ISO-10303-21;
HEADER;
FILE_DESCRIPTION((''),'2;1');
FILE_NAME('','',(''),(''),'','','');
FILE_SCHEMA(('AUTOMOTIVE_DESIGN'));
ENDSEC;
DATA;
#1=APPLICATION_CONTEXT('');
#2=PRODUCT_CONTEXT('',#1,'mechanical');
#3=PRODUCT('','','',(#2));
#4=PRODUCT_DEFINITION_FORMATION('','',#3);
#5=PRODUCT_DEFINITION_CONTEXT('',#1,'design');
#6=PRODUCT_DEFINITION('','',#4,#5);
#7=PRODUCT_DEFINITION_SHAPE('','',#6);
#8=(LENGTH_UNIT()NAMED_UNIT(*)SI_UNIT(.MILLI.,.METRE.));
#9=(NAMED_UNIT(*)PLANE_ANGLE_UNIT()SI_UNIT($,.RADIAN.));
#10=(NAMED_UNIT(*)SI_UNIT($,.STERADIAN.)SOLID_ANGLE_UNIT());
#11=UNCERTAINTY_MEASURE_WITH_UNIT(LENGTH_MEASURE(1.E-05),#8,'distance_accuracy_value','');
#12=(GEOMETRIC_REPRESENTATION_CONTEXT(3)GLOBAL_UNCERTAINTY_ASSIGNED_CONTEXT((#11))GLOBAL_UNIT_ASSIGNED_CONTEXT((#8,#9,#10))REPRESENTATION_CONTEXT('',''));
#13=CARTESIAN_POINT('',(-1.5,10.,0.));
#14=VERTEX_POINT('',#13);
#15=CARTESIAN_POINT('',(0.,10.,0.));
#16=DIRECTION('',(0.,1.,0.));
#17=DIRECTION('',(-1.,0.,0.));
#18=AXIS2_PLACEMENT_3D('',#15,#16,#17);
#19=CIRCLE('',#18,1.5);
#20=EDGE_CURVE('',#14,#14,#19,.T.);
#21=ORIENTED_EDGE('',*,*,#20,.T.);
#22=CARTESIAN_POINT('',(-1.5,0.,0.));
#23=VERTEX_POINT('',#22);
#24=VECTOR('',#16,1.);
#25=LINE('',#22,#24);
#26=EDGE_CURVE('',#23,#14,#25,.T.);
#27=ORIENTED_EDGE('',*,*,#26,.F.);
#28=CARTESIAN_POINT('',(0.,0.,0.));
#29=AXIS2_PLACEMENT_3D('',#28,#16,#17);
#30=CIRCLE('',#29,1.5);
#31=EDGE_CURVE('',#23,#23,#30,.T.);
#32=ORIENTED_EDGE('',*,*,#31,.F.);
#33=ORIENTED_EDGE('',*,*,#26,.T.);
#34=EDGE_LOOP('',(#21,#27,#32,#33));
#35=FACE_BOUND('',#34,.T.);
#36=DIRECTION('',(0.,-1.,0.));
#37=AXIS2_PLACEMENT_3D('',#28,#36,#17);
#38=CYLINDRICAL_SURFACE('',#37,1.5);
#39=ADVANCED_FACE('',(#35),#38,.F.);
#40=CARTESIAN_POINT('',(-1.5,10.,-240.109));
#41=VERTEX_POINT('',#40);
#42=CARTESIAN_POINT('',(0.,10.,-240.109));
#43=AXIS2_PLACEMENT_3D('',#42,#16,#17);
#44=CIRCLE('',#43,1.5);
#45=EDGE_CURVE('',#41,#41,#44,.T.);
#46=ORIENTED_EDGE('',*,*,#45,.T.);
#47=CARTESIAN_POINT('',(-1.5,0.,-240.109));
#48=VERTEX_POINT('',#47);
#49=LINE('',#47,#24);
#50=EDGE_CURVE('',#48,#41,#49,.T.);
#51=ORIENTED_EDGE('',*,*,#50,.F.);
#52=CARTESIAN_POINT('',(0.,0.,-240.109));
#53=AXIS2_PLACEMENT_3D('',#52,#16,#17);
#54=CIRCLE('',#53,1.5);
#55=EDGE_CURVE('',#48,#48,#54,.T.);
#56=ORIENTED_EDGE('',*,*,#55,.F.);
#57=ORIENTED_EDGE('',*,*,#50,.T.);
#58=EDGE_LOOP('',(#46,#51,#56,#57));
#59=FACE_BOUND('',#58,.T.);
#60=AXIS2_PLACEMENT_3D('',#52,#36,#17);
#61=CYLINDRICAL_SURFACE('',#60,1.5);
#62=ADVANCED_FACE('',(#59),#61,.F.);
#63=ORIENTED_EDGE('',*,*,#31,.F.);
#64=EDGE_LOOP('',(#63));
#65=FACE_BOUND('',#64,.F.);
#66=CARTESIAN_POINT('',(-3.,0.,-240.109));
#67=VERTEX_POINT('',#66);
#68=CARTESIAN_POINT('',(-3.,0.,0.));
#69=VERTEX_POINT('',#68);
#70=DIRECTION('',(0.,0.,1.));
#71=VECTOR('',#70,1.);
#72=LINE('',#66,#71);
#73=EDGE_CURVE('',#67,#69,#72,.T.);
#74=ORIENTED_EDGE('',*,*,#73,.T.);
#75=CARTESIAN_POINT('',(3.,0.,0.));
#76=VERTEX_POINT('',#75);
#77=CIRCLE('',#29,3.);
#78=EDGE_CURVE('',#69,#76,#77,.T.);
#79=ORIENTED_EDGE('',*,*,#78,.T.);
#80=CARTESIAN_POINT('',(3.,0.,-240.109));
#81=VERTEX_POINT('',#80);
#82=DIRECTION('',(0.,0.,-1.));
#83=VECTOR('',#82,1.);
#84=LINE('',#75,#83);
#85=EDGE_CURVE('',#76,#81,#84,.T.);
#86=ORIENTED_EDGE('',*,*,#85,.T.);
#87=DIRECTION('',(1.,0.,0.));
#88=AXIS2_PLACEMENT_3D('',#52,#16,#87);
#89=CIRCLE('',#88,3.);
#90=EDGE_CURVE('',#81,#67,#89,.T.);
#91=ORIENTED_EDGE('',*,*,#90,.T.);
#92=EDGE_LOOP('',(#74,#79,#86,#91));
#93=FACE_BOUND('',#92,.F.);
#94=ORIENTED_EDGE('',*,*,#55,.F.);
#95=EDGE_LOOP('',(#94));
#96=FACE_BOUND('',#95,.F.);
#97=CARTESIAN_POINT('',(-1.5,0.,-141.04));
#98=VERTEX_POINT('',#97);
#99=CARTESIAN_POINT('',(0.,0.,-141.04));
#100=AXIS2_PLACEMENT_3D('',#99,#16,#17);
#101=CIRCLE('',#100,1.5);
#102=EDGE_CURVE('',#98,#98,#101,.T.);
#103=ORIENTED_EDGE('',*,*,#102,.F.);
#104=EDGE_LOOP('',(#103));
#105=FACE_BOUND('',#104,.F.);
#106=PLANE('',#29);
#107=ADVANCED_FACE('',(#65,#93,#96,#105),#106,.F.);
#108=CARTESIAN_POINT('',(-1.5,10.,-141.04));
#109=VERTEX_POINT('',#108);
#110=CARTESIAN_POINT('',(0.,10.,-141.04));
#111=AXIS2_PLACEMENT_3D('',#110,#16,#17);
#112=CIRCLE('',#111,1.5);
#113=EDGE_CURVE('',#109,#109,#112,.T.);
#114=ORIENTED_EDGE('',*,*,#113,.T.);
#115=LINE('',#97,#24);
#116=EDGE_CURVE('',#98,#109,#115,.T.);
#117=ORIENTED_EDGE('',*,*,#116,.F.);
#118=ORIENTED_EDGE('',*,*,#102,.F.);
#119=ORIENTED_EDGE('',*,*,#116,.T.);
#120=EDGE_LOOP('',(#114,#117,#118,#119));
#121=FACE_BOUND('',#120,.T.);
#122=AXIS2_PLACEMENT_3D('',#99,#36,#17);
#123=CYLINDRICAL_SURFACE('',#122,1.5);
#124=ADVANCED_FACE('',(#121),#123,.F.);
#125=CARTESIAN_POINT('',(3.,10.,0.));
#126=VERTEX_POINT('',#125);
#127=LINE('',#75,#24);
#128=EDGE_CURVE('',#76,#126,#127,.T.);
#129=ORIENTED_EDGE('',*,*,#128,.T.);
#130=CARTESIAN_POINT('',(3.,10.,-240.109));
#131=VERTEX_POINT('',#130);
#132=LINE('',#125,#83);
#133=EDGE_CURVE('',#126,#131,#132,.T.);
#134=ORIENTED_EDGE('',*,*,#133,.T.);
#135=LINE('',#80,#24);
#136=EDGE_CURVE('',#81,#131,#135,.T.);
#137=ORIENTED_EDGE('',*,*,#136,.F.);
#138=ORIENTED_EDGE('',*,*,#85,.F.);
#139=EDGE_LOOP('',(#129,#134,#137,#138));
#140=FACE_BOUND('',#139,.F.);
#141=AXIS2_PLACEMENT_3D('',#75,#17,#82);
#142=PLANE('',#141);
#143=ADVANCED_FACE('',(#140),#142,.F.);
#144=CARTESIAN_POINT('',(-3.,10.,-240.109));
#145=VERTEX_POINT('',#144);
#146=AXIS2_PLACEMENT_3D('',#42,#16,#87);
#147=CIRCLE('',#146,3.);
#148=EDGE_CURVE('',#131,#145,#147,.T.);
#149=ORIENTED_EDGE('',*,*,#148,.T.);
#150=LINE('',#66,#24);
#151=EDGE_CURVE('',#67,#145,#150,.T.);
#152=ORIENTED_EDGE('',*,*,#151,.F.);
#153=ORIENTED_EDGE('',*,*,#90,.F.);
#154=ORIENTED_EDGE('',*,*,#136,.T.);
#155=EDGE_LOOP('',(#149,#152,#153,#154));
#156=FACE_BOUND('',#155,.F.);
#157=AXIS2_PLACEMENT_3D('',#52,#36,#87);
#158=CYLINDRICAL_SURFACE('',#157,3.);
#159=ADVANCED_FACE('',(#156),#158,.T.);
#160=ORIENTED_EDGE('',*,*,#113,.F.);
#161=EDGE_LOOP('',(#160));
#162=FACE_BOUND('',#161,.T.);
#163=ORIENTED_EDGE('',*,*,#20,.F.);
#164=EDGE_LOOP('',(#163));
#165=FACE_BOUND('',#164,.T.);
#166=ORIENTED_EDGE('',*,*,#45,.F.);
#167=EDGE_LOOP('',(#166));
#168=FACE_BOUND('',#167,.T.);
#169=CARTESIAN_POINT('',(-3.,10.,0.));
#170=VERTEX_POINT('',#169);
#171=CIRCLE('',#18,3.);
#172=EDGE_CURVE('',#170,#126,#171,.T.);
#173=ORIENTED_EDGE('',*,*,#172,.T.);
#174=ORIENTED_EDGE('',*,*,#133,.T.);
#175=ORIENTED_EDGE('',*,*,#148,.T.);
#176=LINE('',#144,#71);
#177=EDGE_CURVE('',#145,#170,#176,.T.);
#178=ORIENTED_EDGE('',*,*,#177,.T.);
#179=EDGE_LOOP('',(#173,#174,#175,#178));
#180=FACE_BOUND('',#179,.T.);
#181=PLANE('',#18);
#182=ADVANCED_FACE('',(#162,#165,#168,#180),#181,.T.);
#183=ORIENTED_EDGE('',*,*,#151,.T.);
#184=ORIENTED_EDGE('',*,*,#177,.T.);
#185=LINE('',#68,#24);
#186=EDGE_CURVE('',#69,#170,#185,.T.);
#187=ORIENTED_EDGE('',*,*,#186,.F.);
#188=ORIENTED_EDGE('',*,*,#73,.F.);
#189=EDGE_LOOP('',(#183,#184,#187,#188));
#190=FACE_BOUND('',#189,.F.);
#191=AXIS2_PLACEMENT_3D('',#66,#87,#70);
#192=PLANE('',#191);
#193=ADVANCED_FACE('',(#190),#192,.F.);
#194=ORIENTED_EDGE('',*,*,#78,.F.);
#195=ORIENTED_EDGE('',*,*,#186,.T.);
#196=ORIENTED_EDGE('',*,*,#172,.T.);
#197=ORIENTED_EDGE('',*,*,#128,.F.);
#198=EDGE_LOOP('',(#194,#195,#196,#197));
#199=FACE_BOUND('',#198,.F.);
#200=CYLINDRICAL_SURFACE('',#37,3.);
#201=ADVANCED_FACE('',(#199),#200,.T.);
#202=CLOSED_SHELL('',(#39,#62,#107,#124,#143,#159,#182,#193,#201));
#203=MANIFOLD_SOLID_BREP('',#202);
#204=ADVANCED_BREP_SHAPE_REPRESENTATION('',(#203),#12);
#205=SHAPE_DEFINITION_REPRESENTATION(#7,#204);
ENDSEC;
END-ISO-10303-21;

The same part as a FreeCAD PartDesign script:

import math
import FreeCAD as App
import Part
import Sketcher
from FreeCAD import Vector
Q = App.Units.Quantity

doc = App.newDocument("Part")
body = doc.addObject("PartDesign::Body", "Body")

sketch1 = body.newObject("Sketcher::SketchObject", "Sketch")
sketch1.AttachmentSupport = (doc.getObject("XZ_Plane"), [""])
sketch1.MapMode = "FlatFace"
sketch1.addGeometry(Part.ArcOfCircle(Part.Circle(Vector(0, 0, 0), Vector(0, 0, 1), 3), math.radians(0), math.radians(180)), False)
sketch1.addGeometry(Part.LineSegment(Vector(3, 0, 0), Vector(3, -240.1, 0)), False)
sketch1.addGeometry(Part.ArcOfCircle(Part.Circle(Vector(0, -240.1, 0), Vector(0, 0, 1), 3), math.radians(180), math.radians(360)), False)
sketch1.addGeometry(Part.LineSegment(Vector(-3, -240.1, 0), Vector(-3, 0, 0)), False)
sketch1.addGeometry(Part.Circle(Vector(0, -240.1, 0), Vector(0, 0, 1), 1.5), False)
sketch1.addGeometry(Part.Circle(Vector(0, -141, 0), Vector(0, 0, 1), 1.5), False)
sketch1.addGeometry(Part.Circle(Vector(0, 0, 0), Vector(0, 0, 1), 1.5), False)
sketch1.addConstraint(Sketcher.Constraint("Tangent", 0, 1, 1, 1))
sketch1.addConstraint(Sketcher.Constraint("Tangent", 1, 2, 2, 2))
sketch1.addConstraint(Sketcher.Constraint("Tangent", 2, 1, 3, 1))
sketch1.addConstraint(Sketcher.Constraint("Tangent", 3, 2, 0, 2))
sketch1.addConstraint(Sketcher.Constraint("Vertical", 1))
sketch1.addConstraint(Sketcher.Constraint("Vertical", 3))
sketch1.addConstraint(Sketcher.Constraint("Coincident", 0, 3, -1, 1))
sketch1.addConstraint(Sketcher.Constraint("Coincident", 6, 3, -1, 1))
sketch1.addConstraint(Sketcher.Constraint("Coincident", 4, 3, 2, 3))
sketch1.addConstraint(Sketcher.Constraint("Equal", 4, 5))
sketch1.addConstraint(Sketcher.Constraint("Equal", 5, 6))
sketch1.addConstraint(Sketcher.Constraint("PointOnObject", 5, 3, -2))
sketch1.addConstraint(Sketcher.Constraint("Diameter", 4, Q("3 mm")))
sketch1.addConstraint(Sketcher.Constraint("Radius", 0, Q("3 mm")))
sketch1.addConstraint(Sketcher.Constraint("DistanceY", 1, 2, 1, 1, Q("240.109 mm")))
sketch1.addConstraint(Sketcher.Constraint("DistanceY", 5, 3, -1, 1, Q("141.04 mm")))
pad1 = body.newObject("PartDesign::Pad", "Pad")
pad1.Profile = sketch1
pad1.Length = 10
pad1.Reversed = True

doc.recompute()
